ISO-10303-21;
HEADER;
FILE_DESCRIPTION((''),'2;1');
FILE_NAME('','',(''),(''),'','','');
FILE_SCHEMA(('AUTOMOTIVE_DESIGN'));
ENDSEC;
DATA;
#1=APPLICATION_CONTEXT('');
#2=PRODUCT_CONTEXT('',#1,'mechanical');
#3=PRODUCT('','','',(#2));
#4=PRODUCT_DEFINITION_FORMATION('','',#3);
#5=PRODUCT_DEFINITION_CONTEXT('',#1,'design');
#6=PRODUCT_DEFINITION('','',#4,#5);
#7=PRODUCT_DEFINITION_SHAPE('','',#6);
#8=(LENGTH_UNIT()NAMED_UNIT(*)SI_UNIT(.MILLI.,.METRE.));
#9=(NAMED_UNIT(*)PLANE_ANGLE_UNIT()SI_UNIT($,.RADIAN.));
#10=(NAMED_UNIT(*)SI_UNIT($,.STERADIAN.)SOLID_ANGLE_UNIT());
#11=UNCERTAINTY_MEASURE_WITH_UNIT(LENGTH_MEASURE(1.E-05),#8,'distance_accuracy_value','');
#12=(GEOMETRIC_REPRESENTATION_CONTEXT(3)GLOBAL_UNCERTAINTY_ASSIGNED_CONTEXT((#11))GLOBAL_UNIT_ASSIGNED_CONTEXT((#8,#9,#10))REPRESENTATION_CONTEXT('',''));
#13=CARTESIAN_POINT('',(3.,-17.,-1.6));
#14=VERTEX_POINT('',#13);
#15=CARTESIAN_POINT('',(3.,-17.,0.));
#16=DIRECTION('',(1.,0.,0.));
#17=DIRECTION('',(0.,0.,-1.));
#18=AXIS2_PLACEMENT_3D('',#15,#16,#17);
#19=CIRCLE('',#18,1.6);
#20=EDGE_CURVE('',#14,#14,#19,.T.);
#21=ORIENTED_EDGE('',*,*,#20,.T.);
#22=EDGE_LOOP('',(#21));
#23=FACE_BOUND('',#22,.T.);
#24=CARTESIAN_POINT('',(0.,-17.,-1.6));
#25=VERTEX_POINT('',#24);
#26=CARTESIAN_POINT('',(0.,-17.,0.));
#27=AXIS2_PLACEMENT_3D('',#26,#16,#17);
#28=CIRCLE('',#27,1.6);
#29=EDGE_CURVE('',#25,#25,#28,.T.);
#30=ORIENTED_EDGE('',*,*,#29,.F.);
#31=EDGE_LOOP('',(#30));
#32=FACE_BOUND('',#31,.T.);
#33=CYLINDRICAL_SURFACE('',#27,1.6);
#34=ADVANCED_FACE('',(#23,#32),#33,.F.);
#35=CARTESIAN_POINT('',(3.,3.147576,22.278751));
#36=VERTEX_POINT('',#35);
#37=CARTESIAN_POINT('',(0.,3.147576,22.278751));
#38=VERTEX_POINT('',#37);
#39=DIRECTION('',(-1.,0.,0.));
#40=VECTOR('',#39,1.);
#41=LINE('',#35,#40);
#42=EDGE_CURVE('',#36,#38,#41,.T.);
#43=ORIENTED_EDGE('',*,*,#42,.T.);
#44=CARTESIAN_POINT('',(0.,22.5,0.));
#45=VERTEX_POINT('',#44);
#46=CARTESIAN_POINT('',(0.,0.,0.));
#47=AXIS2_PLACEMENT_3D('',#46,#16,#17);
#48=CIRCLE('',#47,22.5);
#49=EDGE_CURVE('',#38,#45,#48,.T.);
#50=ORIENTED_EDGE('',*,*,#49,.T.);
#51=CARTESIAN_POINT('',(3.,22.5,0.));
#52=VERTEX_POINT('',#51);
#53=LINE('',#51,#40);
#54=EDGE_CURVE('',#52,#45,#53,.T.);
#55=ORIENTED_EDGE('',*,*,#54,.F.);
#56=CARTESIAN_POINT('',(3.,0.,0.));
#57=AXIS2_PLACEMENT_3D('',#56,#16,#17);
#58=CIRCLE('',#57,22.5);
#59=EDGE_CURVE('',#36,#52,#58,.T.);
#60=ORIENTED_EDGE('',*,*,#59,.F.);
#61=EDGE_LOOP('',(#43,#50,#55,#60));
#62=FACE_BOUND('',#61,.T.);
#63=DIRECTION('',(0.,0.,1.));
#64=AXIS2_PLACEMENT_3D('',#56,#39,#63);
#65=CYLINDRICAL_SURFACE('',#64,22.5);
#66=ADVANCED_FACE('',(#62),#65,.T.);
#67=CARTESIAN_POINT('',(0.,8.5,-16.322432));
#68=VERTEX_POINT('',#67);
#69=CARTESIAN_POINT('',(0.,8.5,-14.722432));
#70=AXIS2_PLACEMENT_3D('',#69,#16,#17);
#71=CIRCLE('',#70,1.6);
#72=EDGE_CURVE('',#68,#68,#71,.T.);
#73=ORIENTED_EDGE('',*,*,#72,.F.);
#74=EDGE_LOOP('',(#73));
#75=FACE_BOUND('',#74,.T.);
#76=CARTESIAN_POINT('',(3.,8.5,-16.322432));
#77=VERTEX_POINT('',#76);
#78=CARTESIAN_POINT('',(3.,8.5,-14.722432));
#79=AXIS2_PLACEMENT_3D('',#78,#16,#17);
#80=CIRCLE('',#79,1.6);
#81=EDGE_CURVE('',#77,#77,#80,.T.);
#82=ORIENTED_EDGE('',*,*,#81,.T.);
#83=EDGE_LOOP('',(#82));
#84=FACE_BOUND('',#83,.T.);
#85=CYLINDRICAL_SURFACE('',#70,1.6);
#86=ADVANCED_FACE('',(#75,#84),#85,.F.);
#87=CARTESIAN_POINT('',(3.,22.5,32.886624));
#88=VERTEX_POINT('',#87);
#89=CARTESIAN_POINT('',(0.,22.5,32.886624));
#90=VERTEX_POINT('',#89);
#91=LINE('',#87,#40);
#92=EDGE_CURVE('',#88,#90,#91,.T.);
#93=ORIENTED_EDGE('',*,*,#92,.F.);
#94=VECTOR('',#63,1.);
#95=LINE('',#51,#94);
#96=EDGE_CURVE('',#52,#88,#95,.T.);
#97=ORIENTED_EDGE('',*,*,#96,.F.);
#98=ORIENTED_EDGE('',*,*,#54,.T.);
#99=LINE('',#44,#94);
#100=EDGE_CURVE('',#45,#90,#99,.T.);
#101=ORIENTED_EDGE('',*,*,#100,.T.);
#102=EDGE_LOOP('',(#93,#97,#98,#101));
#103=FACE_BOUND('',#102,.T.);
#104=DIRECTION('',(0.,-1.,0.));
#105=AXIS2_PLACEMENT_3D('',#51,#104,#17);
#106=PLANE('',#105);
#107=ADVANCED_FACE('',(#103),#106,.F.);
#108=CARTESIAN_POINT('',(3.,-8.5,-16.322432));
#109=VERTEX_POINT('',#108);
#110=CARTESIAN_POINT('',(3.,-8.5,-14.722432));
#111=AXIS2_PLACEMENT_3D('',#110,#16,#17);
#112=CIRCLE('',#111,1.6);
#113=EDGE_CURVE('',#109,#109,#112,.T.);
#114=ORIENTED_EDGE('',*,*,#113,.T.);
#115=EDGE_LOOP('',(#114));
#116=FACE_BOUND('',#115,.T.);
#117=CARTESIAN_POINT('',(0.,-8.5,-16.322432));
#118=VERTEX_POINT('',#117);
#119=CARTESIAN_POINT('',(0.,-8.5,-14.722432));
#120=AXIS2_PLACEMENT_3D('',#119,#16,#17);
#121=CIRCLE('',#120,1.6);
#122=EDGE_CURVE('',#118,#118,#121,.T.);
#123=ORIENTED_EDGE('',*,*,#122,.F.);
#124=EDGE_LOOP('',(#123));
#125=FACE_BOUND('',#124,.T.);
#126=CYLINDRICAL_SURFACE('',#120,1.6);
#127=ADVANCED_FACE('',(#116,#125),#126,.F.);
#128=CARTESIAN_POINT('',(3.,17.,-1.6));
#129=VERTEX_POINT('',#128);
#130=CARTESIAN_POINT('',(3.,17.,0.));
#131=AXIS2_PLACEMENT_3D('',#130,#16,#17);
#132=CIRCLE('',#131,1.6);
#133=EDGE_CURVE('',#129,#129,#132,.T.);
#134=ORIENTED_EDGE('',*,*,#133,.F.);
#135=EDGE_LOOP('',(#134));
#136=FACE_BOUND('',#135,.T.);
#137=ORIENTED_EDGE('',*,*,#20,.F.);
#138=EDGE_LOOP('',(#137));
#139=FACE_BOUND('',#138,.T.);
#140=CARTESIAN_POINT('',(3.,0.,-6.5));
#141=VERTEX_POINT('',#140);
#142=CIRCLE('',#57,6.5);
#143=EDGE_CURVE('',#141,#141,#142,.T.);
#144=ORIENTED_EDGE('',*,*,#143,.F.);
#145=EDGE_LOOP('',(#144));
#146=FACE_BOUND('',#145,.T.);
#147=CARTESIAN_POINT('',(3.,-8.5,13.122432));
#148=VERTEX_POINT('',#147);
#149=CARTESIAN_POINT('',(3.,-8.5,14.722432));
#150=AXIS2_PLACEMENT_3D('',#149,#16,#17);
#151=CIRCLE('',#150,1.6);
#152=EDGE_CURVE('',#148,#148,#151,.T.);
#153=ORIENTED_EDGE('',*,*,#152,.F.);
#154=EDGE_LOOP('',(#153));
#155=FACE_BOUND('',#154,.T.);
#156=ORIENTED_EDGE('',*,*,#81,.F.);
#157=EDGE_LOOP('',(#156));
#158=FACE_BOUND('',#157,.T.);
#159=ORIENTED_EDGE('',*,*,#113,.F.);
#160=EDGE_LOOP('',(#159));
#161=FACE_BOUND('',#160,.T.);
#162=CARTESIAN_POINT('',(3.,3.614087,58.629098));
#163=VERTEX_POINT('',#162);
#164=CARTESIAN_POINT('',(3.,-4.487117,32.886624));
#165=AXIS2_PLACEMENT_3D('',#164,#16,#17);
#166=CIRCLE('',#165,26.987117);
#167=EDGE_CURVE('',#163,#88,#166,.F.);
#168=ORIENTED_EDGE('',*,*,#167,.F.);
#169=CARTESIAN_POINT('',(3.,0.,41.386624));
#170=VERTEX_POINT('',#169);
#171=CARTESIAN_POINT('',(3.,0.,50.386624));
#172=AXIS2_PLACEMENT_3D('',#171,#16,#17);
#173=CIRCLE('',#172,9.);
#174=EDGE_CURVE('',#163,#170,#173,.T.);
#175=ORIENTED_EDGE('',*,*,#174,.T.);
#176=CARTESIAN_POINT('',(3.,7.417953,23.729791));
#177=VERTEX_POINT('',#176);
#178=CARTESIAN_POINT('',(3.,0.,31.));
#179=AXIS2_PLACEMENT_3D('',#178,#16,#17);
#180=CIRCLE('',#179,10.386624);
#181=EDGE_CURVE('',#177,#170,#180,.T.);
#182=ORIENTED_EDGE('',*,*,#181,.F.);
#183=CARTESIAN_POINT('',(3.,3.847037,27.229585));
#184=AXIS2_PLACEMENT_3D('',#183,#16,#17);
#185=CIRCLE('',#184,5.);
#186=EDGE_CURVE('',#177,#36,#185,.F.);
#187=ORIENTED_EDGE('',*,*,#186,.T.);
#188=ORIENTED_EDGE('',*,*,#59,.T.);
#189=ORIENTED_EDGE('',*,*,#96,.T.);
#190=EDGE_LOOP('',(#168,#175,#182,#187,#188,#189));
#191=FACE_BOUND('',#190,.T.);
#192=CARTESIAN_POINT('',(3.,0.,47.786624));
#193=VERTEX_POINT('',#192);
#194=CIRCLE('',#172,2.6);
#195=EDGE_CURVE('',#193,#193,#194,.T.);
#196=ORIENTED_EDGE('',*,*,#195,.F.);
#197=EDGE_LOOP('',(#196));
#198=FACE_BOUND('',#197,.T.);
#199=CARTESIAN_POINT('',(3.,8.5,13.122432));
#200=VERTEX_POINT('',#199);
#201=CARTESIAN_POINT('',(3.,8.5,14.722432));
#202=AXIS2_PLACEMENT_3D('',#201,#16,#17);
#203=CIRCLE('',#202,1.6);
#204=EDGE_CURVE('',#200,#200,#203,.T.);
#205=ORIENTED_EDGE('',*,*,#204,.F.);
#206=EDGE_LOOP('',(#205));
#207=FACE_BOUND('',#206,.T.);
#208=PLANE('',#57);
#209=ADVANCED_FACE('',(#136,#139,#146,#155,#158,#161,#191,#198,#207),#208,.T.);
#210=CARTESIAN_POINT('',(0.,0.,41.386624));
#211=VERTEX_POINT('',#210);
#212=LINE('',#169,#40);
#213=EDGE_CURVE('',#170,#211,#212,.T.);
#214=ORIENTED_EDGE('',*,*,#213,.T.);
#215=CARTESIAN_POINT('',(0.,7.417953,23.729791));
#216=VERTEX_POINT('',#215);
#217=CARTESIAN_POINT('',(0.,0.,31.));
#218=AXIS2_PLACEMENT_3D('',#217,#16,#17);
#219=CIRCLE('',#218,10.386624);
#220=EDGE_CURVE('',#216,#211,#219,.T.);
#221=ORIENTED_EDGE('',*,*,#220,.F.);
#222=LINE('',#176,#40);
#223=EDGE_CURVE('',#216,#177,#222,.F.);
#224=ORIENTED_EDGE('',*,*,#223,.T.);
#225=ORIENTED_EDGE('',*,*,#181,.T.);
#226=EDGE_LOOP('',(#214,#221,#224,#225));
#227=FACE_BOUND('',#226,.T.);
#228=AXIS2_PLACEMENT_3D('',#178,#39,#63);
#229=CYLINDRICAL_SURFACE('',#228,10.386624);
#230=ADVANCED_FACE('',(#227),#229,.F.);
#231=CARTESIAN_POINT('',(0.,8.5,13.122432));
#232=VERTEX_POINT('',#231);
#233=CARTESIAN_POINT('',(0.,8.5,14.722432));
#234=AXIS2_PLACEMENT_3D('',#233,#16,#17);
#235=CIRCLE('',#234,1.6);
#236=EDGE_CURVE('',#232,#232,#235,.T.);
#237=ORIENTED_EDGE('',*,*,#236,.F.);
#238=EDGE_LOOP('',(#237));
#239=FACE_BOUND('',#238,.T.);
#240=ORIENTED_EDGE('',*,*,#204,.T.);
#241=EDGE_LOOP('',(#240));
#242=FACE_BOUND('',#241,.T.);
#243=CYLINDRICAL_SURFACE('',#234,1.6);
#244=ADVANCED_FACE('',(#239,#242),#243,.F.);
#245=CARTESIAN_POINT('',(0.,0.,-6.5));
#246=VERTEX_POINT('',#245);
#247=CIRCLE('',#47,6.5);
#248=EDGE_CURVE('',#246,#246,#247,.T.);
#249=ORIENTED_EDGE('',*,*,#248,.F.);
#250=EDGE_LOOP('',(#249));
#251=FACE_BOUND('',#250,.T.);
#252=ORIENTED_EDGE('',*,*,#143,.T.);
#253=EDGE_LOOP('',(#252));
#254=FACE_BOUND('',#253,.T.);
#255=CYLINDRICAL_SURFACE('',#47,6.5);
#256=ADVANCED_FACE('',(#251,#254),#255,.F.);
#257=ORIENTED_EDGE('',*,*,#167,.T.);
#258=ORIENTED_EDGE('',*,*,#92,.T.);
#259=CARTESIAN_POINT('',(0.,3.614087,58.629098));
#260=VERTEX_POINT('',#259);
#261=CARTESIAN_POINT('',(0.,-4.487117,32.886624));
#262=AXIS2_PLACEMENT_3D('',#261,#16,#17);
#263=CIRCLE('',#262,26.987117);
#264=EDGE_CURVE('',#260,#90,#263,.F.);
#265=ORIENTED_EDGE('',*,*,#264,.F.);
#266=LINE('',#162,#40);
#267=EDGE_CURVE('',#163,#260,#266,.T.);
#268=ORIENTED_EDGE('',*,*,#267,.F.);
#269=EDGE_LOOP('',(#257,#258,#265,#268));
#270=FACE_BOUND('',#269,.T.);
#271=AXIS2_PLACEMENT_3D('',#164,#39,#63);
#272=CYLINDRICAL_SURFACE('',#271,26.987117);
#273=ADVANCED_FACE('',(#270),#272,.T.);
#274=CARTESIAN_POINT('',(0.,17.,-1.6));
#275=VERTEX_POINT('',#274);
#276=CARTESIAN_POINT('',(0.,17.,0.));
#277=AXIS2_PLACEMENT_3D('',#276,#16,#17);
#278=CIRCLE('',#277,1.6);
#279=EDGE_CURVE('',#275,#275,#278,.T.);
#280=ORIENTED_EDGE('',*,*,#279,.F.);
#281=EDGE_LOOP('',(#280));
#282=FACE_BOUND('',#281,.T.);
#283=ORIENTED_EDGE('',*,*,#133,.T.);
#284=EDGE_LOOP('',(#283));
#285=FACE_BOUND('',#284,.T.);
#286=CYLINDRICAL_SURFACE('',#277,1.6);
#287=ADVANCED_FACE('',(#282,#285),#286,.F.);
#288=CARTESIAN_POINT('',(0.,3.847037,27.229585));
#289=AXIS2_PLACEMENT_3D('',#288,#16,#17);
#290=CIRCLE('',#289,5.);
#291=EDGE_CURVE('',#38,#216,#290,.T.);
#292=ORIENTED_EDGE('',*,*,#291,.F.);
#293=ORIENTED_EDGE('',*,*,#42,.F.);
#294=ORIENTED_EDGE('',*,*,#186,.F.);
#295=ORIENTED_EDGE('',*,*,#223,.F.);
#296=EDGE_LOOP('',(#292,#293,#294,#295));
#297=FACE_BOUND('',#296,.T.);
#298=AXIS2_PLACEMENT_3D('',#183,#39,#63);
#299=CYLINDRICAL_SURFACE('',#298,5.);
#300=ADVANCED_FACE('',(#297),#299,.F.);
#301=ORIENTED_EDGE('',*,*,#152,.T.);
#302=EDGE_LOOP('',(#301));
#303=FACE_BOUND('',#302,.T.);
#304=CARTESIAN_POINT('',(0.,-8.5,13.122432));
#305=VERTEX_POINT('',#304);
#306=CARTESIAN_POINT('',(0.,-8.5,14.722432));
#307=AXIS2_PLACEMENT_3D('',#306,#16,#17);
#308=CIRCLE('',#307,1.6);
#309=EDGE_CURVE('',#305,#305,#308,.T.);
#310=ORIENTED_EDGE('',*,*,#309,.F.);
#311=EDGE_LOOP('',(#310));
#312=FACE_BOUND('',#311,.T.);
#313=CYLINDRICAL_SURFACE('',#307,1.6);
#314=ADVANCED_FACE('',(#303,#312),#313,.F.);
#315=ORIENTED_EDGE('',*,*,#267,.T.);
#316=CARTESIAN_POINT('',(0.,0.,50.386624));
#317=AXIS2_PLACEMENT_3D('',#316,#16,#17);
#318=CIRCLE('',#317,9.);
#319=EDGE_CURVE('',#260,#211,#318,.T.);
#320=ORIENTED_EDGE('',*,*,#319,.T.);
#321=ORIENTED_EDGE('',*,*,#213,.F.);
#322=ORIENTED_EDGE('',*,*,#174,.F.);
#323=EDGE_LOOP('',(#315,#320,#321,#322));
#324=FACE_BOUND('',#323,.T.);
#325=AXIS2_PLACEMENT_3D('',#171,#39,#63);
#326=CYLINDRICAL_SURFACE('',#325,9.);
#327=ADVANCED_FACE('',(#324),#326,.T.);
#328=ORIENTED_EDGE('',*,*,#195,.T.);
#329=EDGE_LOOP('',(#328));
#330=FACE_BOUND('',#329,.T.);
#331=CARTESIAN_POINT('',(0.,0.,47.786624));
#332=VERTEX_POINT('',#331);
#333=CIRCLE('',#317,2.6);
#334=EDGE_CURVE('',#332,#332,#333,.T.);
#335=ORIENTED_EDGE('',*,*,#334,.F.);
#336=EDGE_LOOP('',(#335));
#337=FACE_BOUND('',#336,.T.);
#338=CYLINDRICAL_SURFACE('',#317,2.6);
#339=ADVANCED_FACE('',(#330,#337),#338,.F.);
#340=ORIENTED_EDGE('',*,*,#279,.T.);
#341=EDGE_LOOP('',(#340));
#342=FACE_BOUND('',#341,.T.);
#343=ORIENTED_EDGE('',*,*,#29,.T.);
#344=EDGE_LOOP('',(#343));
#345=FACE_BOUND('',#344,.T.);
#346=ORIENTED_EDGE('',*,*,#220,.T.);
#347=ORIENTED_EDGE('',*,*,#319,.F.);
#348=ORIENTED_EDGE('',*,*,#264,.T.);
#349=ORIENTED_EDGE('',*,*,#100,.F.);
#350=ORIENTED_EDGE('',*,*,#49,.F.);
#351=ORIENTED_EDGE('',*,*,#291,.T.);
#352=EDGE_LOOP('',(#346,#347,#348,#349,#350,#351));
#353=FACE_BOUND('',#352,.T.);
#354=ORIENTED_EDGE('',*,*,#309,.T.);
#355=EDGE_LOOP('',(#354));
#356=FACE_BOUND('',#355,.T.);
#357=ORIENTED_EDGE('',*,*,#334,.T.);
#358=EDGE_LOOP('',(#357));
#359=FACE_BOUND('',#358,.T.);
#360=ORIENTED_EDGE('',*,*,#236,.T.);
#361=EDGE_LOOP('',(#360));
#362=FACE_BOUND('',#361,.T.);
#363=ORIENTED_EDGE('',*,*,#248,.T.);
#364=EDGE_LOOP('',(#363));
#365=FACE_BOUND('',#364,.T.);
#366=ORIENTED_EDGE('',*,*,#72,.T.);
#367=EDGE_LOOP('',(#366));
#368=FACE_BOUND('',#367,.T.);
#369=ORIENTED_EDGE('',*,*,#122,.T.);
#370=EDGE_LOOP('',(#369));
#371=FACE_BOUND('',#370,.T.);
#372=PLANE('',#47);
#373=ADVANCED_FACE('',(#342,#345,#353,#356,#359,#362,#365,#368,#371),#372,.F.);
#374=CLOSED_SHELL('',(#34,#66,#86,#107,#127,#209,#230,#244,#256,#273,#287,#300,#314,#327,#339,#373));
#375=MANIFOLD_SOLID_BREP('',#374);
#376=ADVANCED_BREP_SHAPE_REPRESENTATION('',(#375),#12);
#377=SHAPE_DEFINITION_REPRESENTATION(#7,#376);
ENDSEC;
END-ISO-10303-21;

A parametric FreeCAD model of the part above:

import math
import FreeCAD as App
import Part
import Sketcher
from FreeCAD import Vector


def edges_at(feature, points):
    """Names of the edges that pass closest to the given points."""
    edges = feature.Shape.Edges
    near = lambda p: min(range(len(edges)), key=lambda i: edges[i].distToShape(Part.Vertex(*p))[0])
    return sorted({f"Edge{near(p) + 1}" for p in points})

doc = App.newDocument("Part")
body = doc.addObject("PartDesign::Body", "Body")

# Sketch on YZ plane
sketch1 = body.newObject("Sketcher::SketchObject", "Sketch")
sketch1.AttachmentSupport = (doc.getObject("YZ_Plane"), [""])
sketch1.MapMode = "FlatFace"
sketch1.addGeometry(Part.ArcOfCircle(Part.Circle(Vector(0, 31, 0), Vector(0, 0, 1), 10), math.radians(-61), math.radians(90)), False)
sketch1.addGeometry(Part.ArcOfCircle(Part.Circle(Vector(0, 0, 0), Vector(0, 0, 1), 22), math.radians(77), math.radians(360)), False)
sketch1.addGeometry(Part.LineSegment(Vector(22, 0, 0), Vector(22, 33, 0)), False)
sketch1.addGeometry(Part.ArcOfCircle(Part.Circle(Vector(-4, 33, 0), Vector(0, 0, 1), 27), math.radians(0), math.radians(73)), False)
sketch1.addGeometry(Part.ArcOfCircle(Part.Circle(Vector(0, 50, 0), Vector(0, 0, 1), 9), math.radians(66), math.radians(270)), False)
sketch1.addConstraint(Sketcher.Constraint("Coincident", 0, 1, 1, 1))
sketch1.addConstraint(Sketcher.Constraint("Tangent", 1, 2, 2, 1))
sketch1.addConstraint(Sketcher.Constraint("Tangent", 2, 2, 3, 1))
sketch1.addConstraint(Sketcher.Constraint("Coincident", 3, 2, 4, 1))
sketch1.addConstraint(Sketcher.Constraint("Tangent", 4, 2, 0, 2))
sketch1.addConstraint(Sketcher.Constraint("Vertical", 2))
sketch1.addConstraint(Sketcher.Constraint("Coincident", 1, 3, -1, 1))
sketch1.addConstraint(Sketcher.Constraint("PointOnObject", 0, 3, -2))
sketch1.addConstraint(Sketcher.Constraint("PointOnObject", 4, 3, -2))
sketch1.addConstraint(Sketcher.Constraint("Radius", 4, 9.0))
sketch1.addConstraint(Sketcher.Constraint("Radius", 1, 22.5))
sketch1.addConstraint(Sketcher.Constraint("DistanceY", -1, 1, 0, 3, 31.0))
sketch1.addConstraint(Sketcher.Constraint("DistanceY", 3, 3, 4, 3, 17.5))
sketch1.addConstraint(Sketcher.Constraint("DistanceX", 3, 3, 0, 1, 9.539999))
sketch1.addConstraint(Sketcher.Constraint("Radius", 0, 10.386624))
pad1 = body.newObject("PartDesign::Pad", "Pad")
pad1.Profile = sketch1
pad1.Length = 3
doc.recompute()

fillet = body.newObject("PartDesign::Fillet", "Fillet")
fillet.Base = (pad1, edges_at(pad1, [(1.5, 5.053, 21.925)]))
fillet.Radius = 5

# Sketch on YZ plane
sketch2 = body.newObject("Sketcher::SketchObject", "Sketch001")
sketch2.AttachmentSupport = (doc.getObject("YZ_Plane"), [""])
sketch2.MapMode = "FlatFace"
sketch2.AttachmentOffset = App.Placement(Vector(0, 0, 3), App.Rotation())
sketch2.addGeometry(Part.Circle(Vector(0, 0, 0), Vector(0, 0, 1), 6.5), False)
sketch2.addGeometry(Part.Circle(Vector(0, 50.4, 0), Vector(0, 0, 1), 2.6), False)
sketch2.addGeometry(Part.Circle(Vector(17, 0, 0), Vector(0, 0, 1), 1.6), False)
sketch2.addGeometry(Part.Circle(Vector(8.5, -14.7, 0), Vector(0, 0, 1), 1.6), False)
sketch2.addGeometry(Part.Circle(Vector(-8.5, -14.7, 0), Vector(0, 0, 1), 1.6), False)
sketch2.addGeometry(Part.Circle(Vector(-17, 0, 0), Vector(0, 0, 1), 1.6), False)
sketch2.addGeometry(Part.Circle(Vector(-8.5, 14.7, 0), Vector(0, 0, 1), 1.6), False)
sketch2.addGeometry(Part.Circle(Vector(8.5, 14.7, 0), Vector(0, 0, 1), 1.6), False)
sketch2.addConstraint(Sketcher.Constraint("Coincident", 0, 3, -1, 1))
sketch2.addConstraint(Sketcher.Constraint("Equal", 2, 3))
sketch2.addConstraint(Sketcher.Constraint("Equal", 3, 4))
sketch2.addConstraint(Sketcher.Constraint("Equal", 4, 5))
sketch2.addConstraint(Sketcher.Constraint("Equal", 5, 6))
sketch2.addConstraint(Sketcher.Constraint("Equal", 6, 7))
sketch2.addConstraint(Sketcher.Constraint("Symmetric", 2, 3, 5, 3, -1, 1))
sketch2.addConstraint(Sketcher.Constraint("Symmetric", 3, 3, 6, 3, -1, 1))
sketch2.addConstraint(Sketcher.Constraint("Symmetric", 4, 3, 7, 3, -1, 1))
sketch2.addConstraint(Sketcher.Constraint("Symmetric", 3, 3, 4, 3, -2))
sketch2.addConstraint(Sketcher.Constraint("PointOnObject", 1, 3, -2))
sketch2.addConstraint(Sketcher.Constraint("PointOnObject", 2, 3, -1))
sketch2.addConstraint(Sketcher.Constraint("Diameter", 0, 13.0))
sketch2.addConstraint(Sketcher.Constraint("Diameter", 1, 5.2))
sketch2.addConstraint(Sketcher.Constraint("Diameter", 2, 3.2))
sketch2.addConstraint(Sketcher.Constraint("DistanceX", -1, 1, 2, 3, 17.0))
sketch2.addConstraint(Sketcher.Constraint("DistanceX", 4, 3, 3, 3, 17.0))
sketch2.addConstraint(Sketcher.Constraint("DistanceY", 3, 3, -1, 1, 14.722432))
sketch2.addConstraint(Sketcher.Constraint("DistanceY", -1, 1, 1, 3, 50.386624))
pocket1 = body.newObject("PartDesign::Pocket", "Pocket")
pocket1.Profile = sketch2
pocket1.Type = "ThroughAll"

doc.recompute()
